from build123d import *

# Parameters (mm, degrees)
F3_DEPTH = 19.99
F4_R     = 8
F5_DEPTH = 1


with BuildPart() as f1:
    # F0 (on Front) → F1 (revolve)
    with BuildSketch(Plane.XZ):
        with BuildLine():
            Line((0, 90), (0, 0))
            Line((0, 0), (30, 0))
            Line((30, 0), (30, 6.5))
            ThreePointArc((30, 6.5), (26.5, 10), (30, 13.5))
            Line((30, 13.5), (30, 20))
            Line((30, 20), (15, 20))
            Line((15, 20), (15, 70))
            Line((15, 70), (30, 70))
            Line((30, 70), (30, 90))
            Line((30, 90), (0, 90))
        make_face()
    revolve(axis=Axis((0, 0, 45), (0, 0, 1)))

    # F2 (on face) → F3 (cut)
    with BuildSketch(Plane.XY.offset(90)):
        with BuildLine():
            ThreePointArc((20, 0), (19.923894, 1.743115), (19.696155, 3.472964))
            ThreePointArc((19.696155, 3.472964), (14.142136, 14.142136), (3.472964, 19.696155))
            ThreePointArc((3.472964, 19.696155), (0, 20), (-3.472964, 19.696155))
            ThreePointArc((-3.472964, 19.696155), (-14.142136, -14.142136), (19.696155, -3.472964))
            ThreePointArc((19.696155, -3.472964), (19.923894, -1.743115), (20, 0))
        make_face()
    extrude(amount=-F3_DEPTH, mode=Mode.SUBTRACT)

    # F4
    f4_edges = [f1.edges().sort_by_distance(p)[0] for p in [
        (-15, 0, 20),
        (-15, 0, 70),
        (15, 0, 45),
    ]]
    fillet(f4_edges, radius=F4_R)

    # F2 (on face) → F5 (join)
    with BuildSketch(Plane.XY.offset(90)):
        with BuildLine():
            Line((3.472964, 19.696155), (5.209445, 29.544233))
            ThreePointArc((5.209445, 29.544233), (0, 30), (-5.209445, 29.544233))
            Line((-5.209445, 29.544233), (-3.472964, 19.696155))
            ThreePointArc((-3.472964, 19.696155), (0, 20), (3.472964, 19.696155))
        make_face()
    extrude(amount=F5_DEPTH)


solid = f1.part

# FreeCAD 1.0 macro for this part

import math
import FreeCAD as App
import Part
import Sketcher
from FreeCAD import Vector
Q = App.Units.Quantity


def edges_at(feature, points):
    """Names of the edges that pass closest to the given points."""
    edges = feature.Shape.Edges
    near = lambda p: min(range(len(edges)), key=lambda i: edges[i].distToShape(Part.Vertex(*p))[0])
    return sorted({f"Edge{near(p) + 1}" for p in points})

doc = App.newDocument("Part")
body = doc.addObject("PartDesign::Body", "Body")

# Sketch on XZ plane
sketch1 = body.newObject("Sketcher::SketchObject", "Sketch")
sketch1.AttachmentSupport = (doc.getObject("XZ_Plane"), [""])
sketch1.MapMode = "FlatFace"
sketch1.addGeometry([
    Part.LineSegment(Vector(0, 90, 0), Vector(0, 0, 0)),  # 0
    Part.LineSegment(Vector(0, 0, 0), Vector(30, 0, 0)),  # 1
    Part.LineSegment(Vector(30, 0, 0), Vector(30, 6.5, 0)),  # 2
    Part.ArcOfCircle(Part.Circle(Vector(30, 10, 0), Vector(0, 0, 1), 3.5), math.radians(90), math.radians(270)),  # 3
    Part.LineSegment(Vector(30, 13.5, 0), Vector(30, 20, 0)),  # 4
    Part.LineSegment(Vector(30, 20, 0), Vector(15, 20, 0)),  # 5
    Part.LineSegment(Vector(15, 20, 0), Vector(15, 70, 0)),  # 6
    Part.LineSegment(Vector(15, 70, 0), Vector(30, 70, 0)),  # 7
    Part.LineSegment(Vector(30, 70, 0), Vector(30, 90, 0)),  # 8
    Part.LineSegment(Vector(30, 90, 0), Vector(0, 90, 0)),  # 9
], False)
sketch1.addConstraint([
    Sketcher.Constraint("Coincident", 0, 2, 1, 1),
    Sketcher.Constraint("Coincident", 1, 2, 2, 1),
    Sketcher.Constraint("Coincident", 2, 2, 3, 2),
    Sketcher.Constraint("Coincident", 3, 1, 4, 1),
    Sketcher.Constraint("Coincident", 4, 2, 5, 1),
    Sketcher.Constraint("Coincident", 5, 2, 6, 1),
    Sketcher.Constraint("Coincident", 6, 2, 7, 1),
    Sketcher.Constraint("Coincident", 7, 2, 8, 1),
    Sketcher.Constraint("Coincident", 8, 2, 9, 1),
    Sketcher.Constraint("Coincident", 9, 2, 0, 1),
    Sketcher.Constraint("Vertical", 0),
    Sketcher.Constraint("Horizontal", 1),
    Sketcher.Constraint("Vertical", 2),
    Sketcher.Constraint("Vertical", 4),
    Sketcher.Constraint("Horizontal", 5),
    Sketcher.Constraint("Vertical", 6),
    Sketcher.Constraint("Horizontal", 7),
    Sketcher.Constraint("Vertical", 8),
    Sketcher.Constraint("Horizontal", 9),
    Sketcher.Constraint("Coincident", 0, 2, -1, 1),
    Sketcher.Constraint("Vertical", 3, 3, 1, 2),
    Sketcher.Constraint("Vertical", 2, 2, 3, 1),
    Sketcher.Constraint("Vertical", 4, 2, 7, 2),
    Sketcher.Constraint("Equal", 2, 4),
    Sketcher.Constraint("Radius", 3, Q("3.5 mm")),
    Sketcher.Constraint("DistanceX", 1, 1, 1, 2, Q("30 mm")),
    Sketcher.Constraint("DistanceX", 5, 2, 5, 1, Q("15 mm")),
    Sketcher.Constraint("DistanceY", 0, 2, 0, 1, Q("90 mm")),
    Sketcher.Constraint("DistanceY", 6, 1, 6, 2, Q("50 mm")),
    Sketcher.Constraint("DistanceY", 8, 1, 8, 2, Q("20 mm")),
])
revolution = body.newObject("PartDesign::Revolution", "Revolution")
revolution.Profile = sketch1
revolution.ReferenceAxis = (sketch1, ["V_Axis"])
revolution.Angle = 360

# Sketch on XY plane
sketch2 = body.newObject("Sketcher::SketchObject", "Sketch001")
sketch2.AttachmentSupport = (doc.getObject("XY_Plane"), [""])
sketch2.MapMode = "FlatFace"
sketch2.AttachmentOffset = App.Placement(Vector(0, 0, 90), App.Rotation())
sketch2.addGeometry([
    Part.ArcOfCircle(Part.Circle(Vector(0, 0, 0), Vector(0, 0, 1), 20), math.radians(0), math.radians(10)),  # 0
    Part.ArcOfCircle(Part.Circle(Vector(0, 0, 0), Vector(0, 0, 1), 20), math.radians(10), math.radians(80)),  # 1
    Part.ArcOfCircle(Part.Circle(Vector(0, 0, 0), Vector(0, 0, 1), 20), math.radians(80), math.radians(100)),  # 2
    Part.ArcOfCircle(Part.Circle(Vector(0, 0, 0), Vector(0, 0, 1), 20), math.radians(100), math.radians(350)),  # 3
    Part.ArcOfCircle(Part.Circle(Vector(0, 0, 0), Vector(0, 0, 1), 20), math.radians(-10), math.radians(0)),  # 4
], False)
sketch2.addConstraint([
    Sketcher.Constraint("Tangent", 0, 2, 1, 1),
    Sketcher.Constraint("Tangent", 1, 2, 2, 1),
    Sketcher.Constraint("Tangent", 2, 2, 3, 1),
    Sketcher.Constraint("Tangent", 3, 2, 4, 1),
    Sketcher.Constraint("Tangent", 4, 2, 0, 1),
    Sketcher.Constraint("Coincident", 1, 3, -1, 1),
    Sketcher.Constraint("Coincident", 3, 3, -1, 1),
    Sketcher.Constraint("PointOnObject", 4, 2, -1),
    Sketcher.Constraint("Horizontal", 1, 2, 2, 2),
    Sketcher.Constraint("Vertical", 0, 2, 3, 2),
    Sketcher.Constraint("Radius", 2, Q("20.000001 mm")),
    Sketcher.Constraint("DistanceY", 1, 3, 0, 2, Q("3.472962 mm")),
    Sketcher.Constraint("DistanceX", 1, 3, 1, 2, Q("3.472962 mm")),
])
pocket1 = body.newObject("PartDesign::Pocket", "Pocket")
pocket1.Profile = sketch2
pocket1.Length = 19.99
doc.recompute()

fillet = body.newObject("PartDesign::Fillet", "Fillet")
fillet.Base = (pocket1, edges_at(pocket1, [(-15, 0, 20), (-15, 0, 70), (15, 0, 45)]))
fillet.Radius = 8

# Sketch on XY plane
sketch3 = body.newObject("Sketcher::SketchObject", "Sketch002")
sketch3.AttachmentSupport = (doc.getObject("XY_Plane"), [""])
sketch3.MapMode = "FlatFace"
sketch3.AttachmentOffset = App.Placement(Vector(0, 0, 90), App.Rotation())
sketch3.addGeometry([
    Part.LineSegment(Vector(3, 20, 0), Vector(5, 30, 0)),
    Part.ArcOfCircle(Part.Circle(Vector(0, 0, 0), Vector(0, 0, 1), 30), math.radians(80), math.radians(100)),
    Part.LineSegment(Vector(-5, 30, 0), Vector(-3, 20, 0)),
    Part.ArcOfCircle(Part.Circle(Vector(0, 0, 0), Vector(0, 0, 1), 20), math.radians(80), math.radians(100)),
], False)
sketch3.addConstraint([
    Sketcher.Constraint("Coincident", 0, 2, 1, 1),
    Sketcher.Constraint("Coincident", 1, 2, 2, 1),
    Sketcher.Constraint("Coincident", 2, 2, 3, 2),
    Sketcher.Constraint("Coincident", 3, 1, 0, 1),
    Sketcher.Constraint("Coincident", 3, 3, -1, 1),
    Sketcher.Constraint("Symmetric", 0, 2, 1, 2, -2),
    Sketcher.Constraint("Horizontal", 2, 2, 3, 1),
    Sketcher.Constraint("Radius", 3, Q("20.000001 mm")),
    Sketcher.Constraint("Angle", 0, Q("80.000005 deg")),
    Sketcher.Constraint("Distance", 0, Q("10 mm")),
    Sketcher.Constraint("Radius", 1, Q("30.000023 mm")),
    Sketcher.Constraint("DistanceX", 1, 2, 0, 2, Q("10.41889 mm")),
])
pad1 = body.newObject("PartDesign::Pad", "Pad")
pad1.Profile = sketch3
pad1.Length = 1

doc.recompute()
